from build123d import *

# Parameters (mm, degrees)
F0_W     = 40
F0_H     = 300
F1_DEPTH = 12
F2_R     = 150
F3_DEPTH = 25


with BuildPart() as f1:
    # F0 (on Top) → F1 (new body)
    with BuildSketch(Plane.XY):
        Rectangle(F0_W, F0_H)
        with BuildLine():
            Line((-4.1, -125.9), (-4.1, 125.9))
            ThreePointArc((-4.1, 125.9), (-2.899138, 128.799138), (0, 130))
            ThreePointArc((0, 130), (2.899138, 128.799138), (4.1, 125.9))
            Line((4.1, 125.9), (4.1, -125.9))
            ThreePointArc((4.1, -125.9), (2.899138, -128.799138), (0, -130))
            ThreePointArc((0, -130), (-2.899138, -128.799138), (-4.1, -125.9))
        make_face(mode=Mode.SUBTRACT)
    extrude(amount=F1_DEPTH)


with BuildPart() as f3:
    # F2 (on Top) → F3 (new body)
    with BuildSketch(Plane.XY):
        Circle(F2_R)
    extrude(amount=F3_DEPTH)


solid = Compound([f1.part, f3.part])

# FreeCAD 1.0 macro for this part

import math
import FreeCAD as App
import Part
import Sketcher

V = App.Vector

doc = App.newDocument("Part")
body = doc.addObject("PartDesign::Body", "Body")

# Sketch on XY plane
sketch1 = body.newObject("Sketcher::SketchObject", "Sketch")
sketch1.AttachmentSupport = (doc.getObject("XY_Plane"), [""])
sketch1.MapMode = "FlatFace"
sketch1.addGeometry([
    Part.LineSegment(V(-20, 150, 0), V(-20, -150, 0)),  # 0
    Part.LineSegment(V(-20, -150, 0), V(20, -150, 0)),  # 1
    Part.LineSegment(V(20, -150, 0), V(20, 150, 0)),  # 2
    Part.LineSegment(V(20, 150, 0), V(-20, 150, 0)),  # 3
    Part.ArcOfCircle(Part.Circle(V(0, -125.9, 0), V(0, 0, 1), 4.1), math.radians(180), math.radians(270)),  # 4
    Part.LineSegment(V(-4.1, -125.9, 0), V(-4.1, 125.9, 0)),  # 5
    Part.ArcOfCircle(Part.Circle(V(0, 125.9, 0), V(0, 0, 1), 4.1), math.radians(90), math.radians(180)),  # 6
    Part.ArcOfCircle(Part.Circle(V(0, 125.9, 0), V(0, 0, 1), 4.1), math.radians(0), math.radians(90)),  # 7
    Part.LineSegment(V(4.1, 125.9, 0), V(4.1, -125.9, 0)),  # 8
    Part.ArcOfCircle(Part.Circle(V(0, -125.9, 0), V(0, 0, 1), 4.1), math.radians(-90), math.radians(0)),  # 9
], False)
sketch1.addConstraint([
    Sketcher.Constraint("Coincident", 0, 2, 1, 1),
    Sketcher.Constraint("Coincident", 1, 2, 2, 1),
    Sketcher.Constraint("Coincident", 2, 2, 3, 1),
    Sketcher.Constraint("Coincident", 3, 2, 0, 1),
    Sketcher.Constraint("Tangent", 4, 1, 5, 1),
    Sketcher.Constraint("Tangent", 5, 2, 6, 2),
    Sketcher.Constraint("Tangent", 6, 1, 7, 2),
    Sketcher.Constraint("Tangent", 7, 1, 8, 1),
    Sketcher.Constraint("Tangent", 8, 2, 9, 2),
    Sketcher.Constraint("Tangent", 9, 1, 4, 2),
    Sketcher.Constraint("Vertical", 0),
    Sketcher.Constraint("Horizontal", 1),
    Sketcher.Constraint("Vertical", 2),
    Sketcher.Constraint("Horizontal", 3),
    Sketcher.Constraint("Vertical", 5),
    Sketcher.Constraint("Vertical", 8),
    Sketcher.Constraint("Equal", 4, 6),
    Sketcher.Constraint("Equal", 6, 7),
    Sketcher.Constraint("Symmetric", 4, 3, 6, 3, -1, 1),
    Sketcher.Constraint("Symmetric", 0, 2, 2, 2, -1, 1),
    Sketcher.Constraint("PointOnObject", 6, 1, -2),
    Sketcher.Constraint("PointOnObject", 9, 1, -2),
    Sketcher.Constraint("Radius", 4, 4.099999),
    Sketcher.Constraint("DistanceX", 1, 1, 1, 2, 40.0),
    Sketcher.Constraint("DistanceY", 0, 2, 0, 1, 300.0),
    Sketcher.Constraint("DistanceY", 5, 1, 5, 2, 251.8),
])
pad1 = body.newObject("PartDesign::Pad", "Pad")
pad1.Profile = sketch1
pad1.Length = 12
body2 = doc.addObject("PartDesign::Body", "Body001")

# Sketch on XY plane
sketch2 = body2.newObject("Sketcher::SketchObject", "Sketch001")
sketch2.AttachmentSupport = (doc.getObject("XY_Plane001"), [""])
sketch2.MapMode = "FlatFace"
sketch2.addGeometry(Part.Circle(V(0, 0, 0), V(0, 0, 1), 150), False)
sketch2.addConstraint([
    Sketcher.Constraint("Coincident", 0, 3, -1, 1),
    Sketcher.Constraint("Diameter", 0, 300.0),
])
pad2 = body2.newObject("PartDesign::Pad", "Pad001")
pad2.Profile = sketch2
pad2.Length = 25

doc.recompute()
